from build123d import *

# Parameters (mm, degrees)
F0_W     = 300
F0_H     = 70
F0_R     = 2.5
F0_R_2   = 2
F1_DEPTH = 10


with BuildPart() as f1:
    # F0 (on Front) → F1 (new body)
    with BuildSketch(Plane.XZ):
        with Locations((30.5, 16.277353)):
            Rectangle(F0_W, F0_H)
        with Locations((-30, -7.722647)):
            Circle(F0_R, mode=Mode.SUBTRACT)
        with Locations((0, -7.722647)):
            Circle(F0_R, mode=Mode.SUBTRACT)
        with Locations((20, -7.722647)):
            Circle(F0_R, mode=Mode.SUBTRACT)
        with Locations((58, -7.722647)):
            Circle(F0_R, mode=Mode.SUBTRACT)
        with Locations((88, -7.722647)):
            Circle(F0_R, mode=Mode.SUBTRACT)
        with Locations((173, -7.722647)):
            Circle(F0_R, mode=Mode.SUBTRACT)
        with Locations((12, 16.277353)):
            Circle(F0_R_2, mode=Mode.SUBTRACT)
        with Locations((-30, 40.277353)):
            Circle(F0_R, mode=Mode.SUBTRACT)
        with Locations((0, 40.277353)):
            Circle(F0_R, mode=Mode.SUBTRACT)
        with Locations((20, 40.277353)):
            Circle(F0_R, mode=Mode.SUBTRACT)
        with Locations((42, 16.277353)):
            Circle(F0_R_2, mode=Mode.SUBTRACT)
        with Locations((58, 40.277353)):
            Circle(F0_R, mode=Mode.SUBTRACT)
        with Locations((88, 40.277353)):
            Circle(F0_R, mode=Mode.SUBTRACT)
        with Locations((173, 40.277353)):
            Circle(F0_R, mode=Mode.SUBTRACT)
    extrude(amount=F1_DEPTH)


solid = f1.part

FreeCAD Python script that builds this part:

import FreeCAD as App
import Part
import Sketcher

V = App.Vector
Q = App.Units.Quantity

doc = App.newDocument("Part")
params = doc.addObject("Spreadsheet::Sheet", "Params")
for row, (alias, value) in enumerate([
    ("sketch1_diameter", "5 mm"),
    ("sketch1_diameter2", "4 mm"),
    ("sketch1_width", "300 mm"),
    ("sketch1_height", "70 mm"),
    ("pad1_length", "10 mm"),
], start=1):
    params.set(f"A{row}", alias)
    params.set(f"B{row}", "=" + value)
    params.setAlias(f"B{row}", alias)

body = doc.addObject("PartDesign::Body", "Body")

# Sketch on XZ plane
sketch1 = body.newObject("Sketcher::SketchObject", "Sketch")
sketch1.AttachmentSupport = (doc.getObject("XZ_Plane"), [""])
sketch1.MapMode = "FlatFace"
sketch1.addGeometry([
    Part.LineSegment(V(-119.5, 51.3, 0), V(-119.5, -18.7, 0)),  # 0
    Part.LineSegment(V(-119.5, -18.7, 0), V(180.5, -18.7, 0)),  # 1
    Part.LineSegment(V(180.5, -18.7, 0), V(180.5, 51.3, 0)),  # 2
    Part.LineSegment(V(180.5, 51.3, 0), V(-119.5, 51.3, 0)),  # 3
    Part.Circle(V(-30, -7.7, 0), V(0, 0, 1), 2.5),  # 4
    Part.Circle(V(0, -7.7, 0), V(0, 0, 1), 2.5),  # 5
    Part.Circle(V(20, -7.7, 0), V(0, 0, 1), 2.5),  # 6
    Part.Circle(V(58, -7.7, 0), V(0, 0, 1), 2.5),  # 7
    Part.Circle(V(88, -7.7, 0), V(0, 0, 1), 2.5),  # 8
    Part.Circle(V(173, -7.7, 0), V(0, 0, 1), 2.5),  # 9
    Part.Circle(V(12, 16.3, 0), V(0, 0, 1), 2),  # 10
    Part.Circle(V(42, 16.3, 0), V(0, 0, 1), 2),  # 11
    Part.Circle(V(-30, 40.3, 0), V(0, 0, 1), 2.5),  # 12
    Part.Circle(V(0, 40.3, 0), V(0, 0, 1), 2.5),  # 13
    Part.Circle(V(20, 40.3, 0), V(0, 0, 1), 2.5),  # 14
    Part.Circle(V(58, 40.3, 0), V(0, 0, 1), 2.5),  # 15
    Part.Circle(V(88, 40.3, 0), V(0, 0, 1), 2.5),  # 16
    Part.Circle(V(173, 40.3, 0), V(0, 0, 1), 2.5),  # 17
], False)
sketch1.addConstraint([
    Sketcher.Constraint("Coincident", 0, 2, 1, 1),
    Sketcher.Constraint("Coincident", 1, 2, 2, 1),
    Sketcher.Constraint("Coincident", 2, 2, 3, 1),
    Sketcher.Constraint("Coincident", 3, 2, 0, 1),
    Sketcher.Constraint("Vertical", 0),
    Sketcher.Constraint("Horizontal", 1),
    Sketcher.Constraint("Vertical", 2),
    Sketcher.Constraint("Horizontal", 3),
    Sketcher.Constraint("Equal", 4, 5),
    Sketcher.Constraint("Equal", 5, 6),
    Sketcher.Constraint("Equal", 6, 7),
    Sketcher.Constraint("Equal", 7, 8),
    Sketcher.Constraint("Equal", 8, 9),
    Sketcher.Constraint("Equal", 10, 11),
    Sketcher.Constraint("Equal", 9, 12),
    Sketcher.Constraint("Equal", 12, 13),
    Sketcher.Constraint("Equal", 13, 14),
    Sketcher.Constraint("Equal", 14, 15),
    Sketcher.Constraint("Equal", 15, 16),
    Sketcher.Constraint("Equal", 16, 17),
    Sketcher.Constraint("PointOnObject", 5, 3, -2),
    Sketcher.Constraint("PointOnObject", 13, 3, -2),
    Sketcher.Constraint("Horizontal", 4, 3, 5, 3),
    Sketcher.Constraint("Horizontal", 5, 3, 6, 3),
    Sketcher.Constraint("Horizontal", 6, 3, 7, 3),
    Sketcher.Constraint("Horizontal", 7, 3, 8, 3),
    Sketcher.Constraint("Horizontal", 8, 3, 9, 3),
    Sketcher.Constraint("Horizontal", 10, 3, 11, 3),
    Sketcher.Constraint("Horizontal", 12, 3, 13, 3),
    Sketcher.Constraint("Horizontal", 13, 3, 14, 3),
    Sketcher.Constraint("Horizontal", 14, 3, 15, 3),
    Sketcher.Constraint("Horizontal", 15, 3, 16, 3),
    Sketcher.Constraint("Horizontal", 16, 3, 17, 3),
    Sketcher.Constraint("Vertical", 4, 3, 12, 3),
    Sketcher.Constraint("Vertical", 6, 3, 14, 3),
    Sketcher.Constraint("Vertical", 7, 3, 15, 3),
    Sketcher.Constraint("Vertical", 8, 3, 16, 3),
    Sketcher.Constraint("Vertical", 9, 3, 17, 3),
    Sketcher.Constraint("Diameter", 4, Q("5 mm")),
    Sketcher.Constraint("Diameter", 10, Q("4 mm")),
    Sketcher.Constraint("DistanceX", 1, 1, 1, 2, Q("300 mm")),
    Sketcher.Constraint("DistanceY", 0, 2, 0, 1, Q("70 mm")),
    Sketcher.Constraint("DistanceX", 4, 3, -1, 1, Q("30 mm")),
    Sketcher.Constraint("DistanceX", -1, 1, 6, 3, Q("20 mm")),
    Sketcher.Constraint("DistanceX", -1, 1, 7, 3, Q("58 mm")),
    Sketcher.Constraint("DistanceX", -1, 1, 8, 3, Q("88 mm")),
    Sketcher.Constraint("DistanceX", -1, 1, 9, 3, Q("173 mm")),
    Sketcher.Constraint("DistanceX", -1, 1, 10, 3, Q("12 mm")),
    Sketcher.Constraint("DistanceX", -1, 1, 11, 3, Q("42 mm")),
    Sketcher.Constraint("DistanceY", 6, 3, 10, 3, Q("24 mm")),
    Sketcher.Constraint("DistanceY", 4, 3, 12, 3, Q("48 mm")),
    Sketcher.Constraint("DistanceY", 0, 2, 4, 3, Q("11 mm")),
    Sketcher.Constraint("DistanceX", 0, 2, -1, 1, Q("119.5 mm")),
    Sketcher.Constraint("DistanceY", 4, 3, -1, 1, Q("7.722647 mm")),
])
sketch1.setExpression("Constraints[38]", "Params.sketch1_diameter")
sketch1.setExpression("Constraints[39]", "Params.sketch1_diameter2")
sketch1.setExpression("Constraints[40]", "Params.sketch1_width")
sketch1.setExpression("Constraints[41]", "Params.sketch1_height")
pad1 = body.newObject("PartDesign::Pad", "Pad")
pad1.Profile = sketch1
pad1.setExpression("Length", "Params.pad1_length")

doc.recompute()
